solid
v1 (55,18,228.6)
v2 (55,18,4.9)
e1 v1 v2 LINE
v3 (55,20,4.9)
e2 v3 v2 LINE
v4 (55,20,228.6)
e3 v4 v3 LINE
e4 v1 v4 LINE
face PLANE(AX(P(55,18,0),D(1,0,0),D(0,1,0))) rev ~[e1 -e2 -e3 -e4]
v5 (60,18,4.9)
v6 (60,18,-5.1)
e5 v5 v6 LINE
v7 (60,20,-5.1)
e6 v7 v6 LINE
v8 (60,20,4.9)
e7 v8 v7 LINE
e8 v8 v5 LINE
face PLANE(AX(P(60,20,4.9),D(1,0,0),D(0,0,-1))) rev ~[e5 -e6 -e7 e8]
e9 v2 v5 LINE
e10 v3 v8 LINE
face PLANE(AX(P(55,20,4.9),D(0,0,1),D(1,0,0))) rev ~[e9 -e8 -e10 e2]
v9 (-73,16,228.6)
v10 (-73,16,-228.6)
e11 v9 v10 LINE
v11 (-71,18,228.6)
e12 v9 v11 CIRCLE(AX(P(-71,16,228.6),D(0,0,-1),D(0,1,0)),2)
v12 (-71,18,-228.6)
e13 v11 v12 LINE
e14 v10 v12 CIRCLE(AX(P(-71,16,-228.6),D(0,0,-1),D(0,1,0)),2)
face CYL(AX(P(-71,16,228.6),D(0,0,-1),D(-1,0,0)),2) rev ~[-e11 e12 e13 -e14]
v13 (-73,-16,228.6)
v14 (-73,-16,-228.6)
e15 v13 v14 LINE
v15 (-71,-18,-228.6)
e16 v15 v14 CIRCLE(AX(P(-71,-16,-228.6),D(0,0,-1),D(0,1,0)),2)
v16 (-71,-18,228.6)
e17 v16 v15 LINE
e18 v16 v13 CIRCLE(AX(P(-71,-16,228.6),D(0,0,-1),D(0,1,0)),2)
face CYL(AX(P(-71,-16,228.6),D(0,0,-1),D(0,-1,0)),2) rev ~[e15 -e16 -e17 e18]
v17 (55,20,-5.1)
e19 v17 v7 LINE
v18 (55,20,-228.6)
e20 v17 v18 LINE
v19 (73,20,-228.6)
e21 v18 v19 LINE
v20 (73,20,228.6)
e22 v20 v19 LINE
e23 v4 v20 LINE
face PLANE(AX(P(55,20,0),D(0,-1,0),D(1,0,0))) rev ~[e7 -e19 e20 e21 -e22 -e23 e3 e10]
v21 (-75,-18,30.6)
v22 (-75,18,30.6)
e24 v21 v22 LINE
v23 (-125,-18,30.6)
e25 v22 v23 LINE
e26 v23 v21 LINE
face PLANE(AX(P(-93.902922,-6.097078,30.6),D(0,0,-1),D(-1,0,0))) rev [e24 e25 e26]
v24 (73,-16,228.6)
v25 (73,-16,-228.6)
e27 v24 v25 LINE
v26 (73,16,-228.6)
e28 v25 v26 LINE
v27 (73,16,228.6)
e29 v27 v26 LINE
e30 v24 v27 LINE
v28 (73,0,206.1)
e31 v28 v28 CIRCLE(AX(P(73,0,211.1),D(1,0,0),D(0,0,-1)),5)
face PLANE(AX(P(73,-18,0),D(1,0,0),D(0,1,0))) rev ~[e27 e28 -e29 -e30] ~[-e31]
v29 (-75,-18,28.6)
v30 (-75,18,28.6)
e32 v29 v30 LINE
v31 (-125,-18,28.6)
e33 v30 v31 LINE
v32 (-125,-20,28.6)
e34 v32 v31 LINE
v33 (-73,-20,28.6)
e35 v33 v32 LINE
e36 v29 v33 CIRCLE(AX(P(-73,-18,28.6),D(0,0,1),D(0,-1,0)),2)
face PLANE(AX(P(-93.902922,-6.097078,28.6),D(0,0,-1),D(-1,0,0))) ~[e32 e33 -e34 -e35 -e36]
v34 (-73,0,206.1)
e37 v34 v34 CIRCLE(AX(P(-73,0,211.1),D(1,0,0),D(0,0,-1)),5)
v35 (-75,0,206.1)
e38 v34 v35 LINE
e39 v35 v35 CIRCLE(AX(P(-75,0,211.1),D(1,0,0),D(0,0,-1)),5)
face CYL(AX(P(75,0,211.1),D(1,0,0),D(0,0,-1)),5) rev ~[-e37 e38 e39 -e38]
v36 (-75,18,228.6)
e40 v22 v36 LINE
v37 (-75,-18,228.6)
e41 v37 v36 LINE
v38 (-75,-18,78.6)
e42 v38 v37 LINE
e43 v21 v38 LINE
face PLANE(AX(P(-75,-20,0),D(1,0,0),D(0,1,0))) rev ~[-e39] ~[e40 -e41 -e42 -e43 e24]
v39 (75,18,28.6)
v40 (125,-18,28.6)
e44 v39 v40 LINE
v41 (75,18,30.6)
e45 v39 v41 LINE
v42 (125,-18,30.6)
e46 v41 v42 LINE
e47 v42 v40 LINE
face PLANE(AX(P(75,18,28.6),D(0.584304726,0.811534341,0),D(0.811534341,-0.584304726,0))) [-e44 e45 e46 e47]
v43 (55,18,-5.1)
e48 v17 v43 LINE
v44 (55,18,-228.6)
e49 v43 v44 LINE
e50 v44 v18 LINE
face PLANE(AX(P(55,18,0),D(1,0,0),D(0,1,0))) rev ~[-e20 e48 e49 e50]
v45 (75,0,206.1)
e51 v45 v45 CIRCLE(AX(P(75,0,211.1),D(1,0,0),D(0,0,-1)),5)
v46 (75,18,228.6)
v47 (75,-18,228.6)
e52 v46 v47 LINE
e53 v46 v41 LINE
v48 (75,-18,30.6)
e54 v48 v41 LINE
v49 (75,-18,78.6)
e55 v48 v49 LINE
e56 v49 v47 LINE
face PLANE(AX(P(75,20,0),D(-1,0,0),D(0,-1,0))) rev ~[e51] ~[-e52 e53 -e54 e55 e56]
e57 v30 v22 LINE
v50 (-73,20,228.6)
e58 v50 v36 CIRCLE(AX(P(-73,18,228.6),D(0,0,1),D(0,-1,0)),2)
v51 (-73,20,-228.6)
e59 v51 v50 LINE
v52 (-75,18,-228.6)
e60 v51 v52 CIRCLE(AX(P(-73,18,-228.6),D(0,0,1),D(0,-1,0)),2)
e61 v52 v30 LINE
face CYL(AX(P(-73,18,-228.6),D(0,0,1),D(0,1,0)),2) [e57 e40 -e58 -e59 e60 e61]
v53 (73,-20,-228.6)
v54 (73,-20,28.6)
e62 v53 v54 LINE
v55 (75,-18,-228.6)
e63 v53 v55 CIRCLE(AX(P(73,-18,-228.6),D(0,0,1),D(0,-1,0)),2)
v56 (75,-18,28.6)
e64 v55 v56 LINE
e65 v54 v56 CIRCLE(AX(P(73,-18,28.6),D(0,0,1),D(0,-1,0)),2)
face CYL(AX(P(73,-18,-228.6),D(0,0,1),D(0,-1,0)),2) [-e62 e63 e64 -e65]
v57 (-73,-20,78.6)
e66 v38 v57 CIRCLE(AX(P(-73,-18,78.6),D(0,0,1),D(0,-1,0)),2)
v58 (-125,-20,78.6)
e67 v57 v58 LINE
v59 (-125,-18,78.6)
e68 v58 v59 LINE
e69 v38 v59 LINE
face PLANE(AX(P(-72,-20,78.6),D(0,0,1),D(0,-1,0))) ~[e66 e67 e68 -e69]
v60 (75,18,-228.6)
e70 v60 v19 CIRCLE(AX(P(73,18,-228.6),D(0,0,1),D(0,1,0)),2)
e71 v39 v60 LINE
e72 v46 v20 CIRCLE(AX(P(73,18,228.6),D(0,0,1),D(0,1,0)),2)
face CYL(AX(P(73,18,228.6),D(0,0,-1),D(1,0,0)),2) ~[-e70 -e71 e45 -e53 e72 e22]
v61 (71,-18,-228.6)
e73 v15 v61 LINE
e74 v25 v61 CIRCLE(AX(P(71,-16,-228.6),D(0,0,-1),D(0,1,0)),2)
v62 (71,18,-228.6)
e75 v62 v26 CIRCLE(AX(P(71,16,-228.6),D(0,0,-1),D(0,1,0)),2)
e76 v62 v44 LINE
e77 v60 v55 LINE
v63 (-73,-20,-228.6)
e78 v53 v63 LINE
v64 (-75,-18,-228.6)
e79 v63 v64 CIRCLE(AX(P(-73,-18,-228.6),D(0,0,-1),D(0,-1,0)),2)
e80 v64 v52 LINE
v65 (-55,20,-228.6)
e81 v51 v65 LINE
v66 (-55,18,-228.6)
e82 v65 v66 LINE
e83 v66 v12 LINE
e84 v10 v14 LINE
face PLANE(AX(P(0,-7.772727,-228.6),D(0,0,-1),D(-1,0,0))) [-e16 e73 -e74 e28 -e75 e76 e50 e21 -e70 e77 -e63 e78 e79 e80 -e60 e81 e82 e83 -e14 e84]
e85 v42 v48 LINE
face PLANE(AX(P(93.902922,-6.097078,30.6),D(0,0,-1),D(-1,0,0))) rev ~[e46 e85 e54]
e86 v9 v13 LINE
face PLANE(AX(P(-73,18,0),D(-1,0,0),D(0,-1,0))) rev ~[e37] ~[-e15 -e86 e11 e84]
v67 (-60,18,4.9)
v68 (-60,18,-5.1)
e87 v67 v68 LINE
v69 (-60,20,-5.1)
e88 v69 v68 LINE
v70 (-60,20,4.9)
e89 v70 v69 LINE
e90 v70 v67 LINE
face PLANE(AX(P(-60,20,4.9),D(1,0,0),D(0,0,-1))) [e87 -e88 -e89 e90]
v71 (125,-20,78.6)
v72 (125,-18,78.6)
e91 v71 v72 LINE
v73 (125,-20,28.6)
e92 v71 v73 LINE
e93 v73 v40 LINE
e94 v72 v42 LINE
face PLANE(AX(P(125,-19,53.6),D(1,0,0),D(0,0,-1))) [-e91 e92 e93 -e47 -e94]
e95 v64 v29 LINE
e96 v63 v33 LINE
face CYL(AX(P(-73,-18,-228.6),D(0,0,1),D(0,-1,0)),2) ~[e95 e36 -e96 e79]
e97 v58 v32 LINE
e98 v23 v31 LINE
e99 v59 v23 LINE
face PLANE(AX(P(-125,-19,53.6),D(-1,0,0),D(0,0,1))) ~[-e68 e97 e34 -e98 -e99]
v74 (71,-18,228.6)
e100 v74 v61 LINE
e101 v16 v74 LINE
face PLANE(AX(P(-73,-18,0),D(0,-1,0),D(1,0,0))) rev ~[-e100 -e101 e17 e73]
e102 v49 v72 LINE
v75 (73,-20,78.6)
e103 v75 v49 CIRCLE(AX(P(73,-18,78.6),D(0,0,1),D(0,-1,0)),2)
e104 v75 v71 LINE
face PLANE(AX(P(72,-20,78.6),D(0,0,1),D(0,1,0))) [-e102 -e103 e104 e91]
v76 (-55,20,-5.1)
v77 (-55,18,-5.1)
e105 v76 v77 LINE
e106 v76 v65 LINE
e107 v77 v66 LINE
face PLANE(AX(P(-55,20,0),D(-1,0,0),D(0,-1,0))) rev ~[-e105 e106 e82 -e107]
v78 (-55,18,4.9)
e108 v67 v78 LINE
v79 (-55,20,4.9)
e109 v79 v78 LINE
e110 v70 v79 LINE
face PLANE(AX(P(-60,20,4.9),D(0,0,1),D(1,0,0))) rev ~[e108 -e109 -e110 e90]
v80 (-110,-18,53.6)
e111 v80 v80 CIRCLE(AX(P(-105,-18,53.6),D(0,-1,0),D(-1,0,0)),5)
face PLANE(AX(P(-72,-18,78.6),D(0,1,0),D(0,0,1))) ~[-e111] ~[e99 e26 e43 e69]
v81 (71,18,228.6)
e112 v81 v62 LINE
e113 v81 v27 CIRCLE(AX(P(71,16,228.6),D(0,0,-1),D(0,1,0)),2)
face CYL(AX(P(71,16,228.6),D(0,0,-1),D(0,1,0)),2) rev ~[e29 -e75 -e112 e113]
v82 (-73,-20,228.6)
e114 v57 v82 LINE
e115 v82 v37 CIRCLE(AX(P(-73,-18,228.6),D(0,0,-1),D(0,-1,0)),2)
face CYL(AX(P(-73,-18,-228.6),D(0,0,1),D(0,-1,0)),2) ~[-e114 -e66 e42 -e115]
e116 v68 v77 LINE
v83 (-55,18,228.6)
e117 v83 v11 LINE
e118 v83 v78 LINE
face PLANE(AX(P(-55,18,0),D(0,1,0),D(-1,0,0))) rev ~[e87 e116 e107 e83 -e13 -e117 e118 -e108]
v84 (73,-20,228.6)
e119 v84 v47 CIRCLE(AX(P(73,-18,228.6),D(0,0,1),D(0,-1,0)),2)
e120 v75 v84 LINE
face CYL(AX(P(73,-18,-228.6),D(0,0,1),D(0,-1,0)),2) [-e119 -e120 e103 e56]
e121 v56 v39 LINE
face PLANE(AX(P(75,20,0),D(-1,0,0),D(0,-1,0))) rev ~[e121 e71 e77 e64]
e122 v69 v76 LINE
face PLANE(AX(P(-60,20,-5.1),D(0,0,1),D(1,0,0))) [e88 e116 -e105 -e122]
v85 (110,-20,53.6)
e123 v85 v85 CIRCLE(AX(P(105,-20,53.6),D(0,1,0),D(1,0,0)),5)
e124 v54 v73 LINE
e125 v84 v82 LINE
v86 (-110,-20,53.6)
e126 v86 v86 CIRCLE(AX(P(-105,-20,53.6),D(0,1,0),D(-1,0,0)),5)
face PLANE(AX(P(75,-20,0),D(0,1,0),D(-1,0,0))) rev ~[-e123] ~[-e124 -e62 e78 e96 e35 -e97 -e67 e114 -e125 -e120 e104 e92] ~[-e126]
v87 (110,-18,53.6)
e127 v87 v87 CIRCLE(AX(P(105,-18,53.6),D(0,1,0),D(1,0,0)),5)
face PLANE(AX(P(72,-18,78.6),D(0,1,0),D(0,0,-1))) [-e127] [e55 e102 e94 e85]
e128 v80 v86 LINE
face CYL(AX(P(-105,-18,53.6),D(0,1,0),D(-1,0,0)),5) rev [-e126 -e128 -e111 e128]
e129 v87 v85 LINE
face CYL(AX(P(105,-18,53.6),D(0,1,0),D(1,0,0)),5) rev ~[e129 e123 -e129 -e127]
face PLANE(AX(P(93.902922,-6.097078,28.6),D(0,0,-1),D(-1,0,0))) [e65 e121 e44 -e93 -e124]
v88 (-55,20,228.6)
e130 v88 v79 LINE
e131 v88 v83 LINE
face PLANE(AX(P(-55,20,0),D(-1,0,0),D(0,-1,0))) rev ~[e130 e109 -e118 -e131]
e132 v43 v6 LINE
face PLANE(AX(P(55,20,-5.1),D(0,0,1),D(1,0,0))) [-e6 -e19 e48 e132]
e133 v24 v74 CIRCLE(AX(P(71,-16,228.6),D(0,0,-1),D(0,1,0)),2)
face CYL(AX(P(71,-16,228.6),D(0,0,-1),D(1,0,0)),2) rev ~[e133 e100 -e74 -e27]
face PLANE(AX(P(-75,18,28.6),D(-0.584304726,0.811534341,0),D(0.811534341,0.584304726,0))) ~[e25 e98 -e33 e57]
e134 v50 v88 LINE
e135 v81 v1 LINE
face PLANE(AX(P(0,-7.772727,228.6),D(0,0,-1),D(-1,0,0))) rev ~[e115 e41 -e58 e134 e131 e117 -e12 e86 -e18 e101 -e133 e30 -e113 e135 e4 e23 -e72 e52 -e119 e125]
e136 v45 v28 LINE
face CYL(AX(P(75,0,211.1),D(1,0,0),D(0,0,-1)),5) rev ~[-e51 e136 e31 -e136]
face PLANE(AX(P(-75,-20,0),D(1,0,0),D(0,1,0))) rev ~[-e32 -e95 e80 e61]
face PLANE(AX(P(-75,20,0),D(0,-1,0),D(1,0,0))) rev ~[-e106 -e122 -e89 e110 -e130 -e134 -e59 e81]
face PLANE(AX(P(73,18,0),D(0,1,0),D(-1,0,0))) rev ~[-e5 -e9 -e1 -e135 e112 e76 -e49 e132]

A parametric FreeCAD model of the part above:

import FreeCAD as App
import Part
import Sketcher


def edges_at(feature, points):
    """Names of the edges that pass closest to the given points."""
    edges = feature.Shape.Edges
    near = lambda p: min(range(len(edges)), key=lambda i: edges[i].distToShape(Part.Vertex(*p))[0])
    return sorted({f"Edge{near(p) + 1}" for p in points})

doc = App.newDocument("Part")
params = doc.addObject("Spreadsheet::Sheet", "Params")
for row, (alias, value) in enumerate([
    ("sketch1_width", "20 mm"),
    ("sketch1_width2", "150 mm"),
    ("sketch1_width3", "18 mm"),
    ("sketch1_height", "40 mm"),
    ("sketch1_height2", "2 mm"),
    ("pad1_length", "457.2 mm"),
    ("fillet_radius", "2 mm"),
    ("sketch2_diameter", "10 mm"),
    ("sketch3_width", "2 mm"),
    ("sketch3_height", "50 mm"),
    ("pad2_length", "53 mm"),
    ("sketch4_diameter", "10 mm"),
    ("pocket2_length", "50 mm"),
    ("sketch5_width", "50 mm"),
    ("sketch5_height", "36 mm"),
    ("pad3_length", "2 mm"),
    ("sketch6_width", "5 mm"),
    ("sketch6_height", "10 mm"),
    ("pocket3_length", "10 mm"),
], start=1):
    params.set(f"A{row}", alias)
    params.set(f"B{row}", "=" + value)
    params.setAlias(f"B{row}", alias)

body = doc.addObject("PartDesign::Body", "Body")

# Sketch on XY plane
sketch1 = doc.addObject("Sketcher::SketchObject", "Sketch")
body.addObject(sketch1)
sketch1.AttachmentSupport = (doc.XY_Plane, [""])
sketch1.MapMode = "FlatFace"
sketch1.addGeometry([
    Part.LineSegment(App.Vector(-55, 20, 0), App.Vector(-75, 20, 0)),  # 0
    Part.LineSegment(App.Vector(-75, 20, 0), App.Vector(-75, -20, 0)),  # 1
    Part.LineSegment(App.Vector(-75, -20, 0), App.Vector(75, -20, 0)),  # 2
    Part.LineSegment(App.Vector(75, -20, 0), App.Vector(75, 20, 0)),  # 3
    Part.LineSegment(App.Vector(75, 20, 0), App.Vector(55, 20, 0)),  # 4
    Part.LineSegment(App.Vector(55, 20, 0), App.Vector(55, 18, 0)),  # 5
    Part.LineSegment(App.Vector(55, 18, 0), App.Vector(73, 18, 0)),  # 6
    Part.LineSegment(App.Vector(73, 18, 0), App.Vector(73, -18, 0)),  # 7
    Part.LineSegment(App.Vector(73, -18, 0), App.Vector(-73, -18, 0)),  # 8
    Part.LineSegment(App.Vector(-73, -18, 0), App.Vector(-73, 18, 0)),  # 9
    Part.LineSegment(App.Vector(-73, 18, 0), App.Vector(-55, 18, 0)),  # 10
    Part.LineSegment(App.Vector(-55, 18, 0), App.Vector(-55, 20, 0)),  # 11
], False)
sketch1.addConstraint([
    Sketcher.Constraint("Coincident", 0, 2, 1, 1),
    Sketcher.Constraint("Coincident", 1, 2, 2, 1),
    Sketcher.Constraint("Coincident", 2, 2, 3, 1),
    Sketcher.Constraint("Coincident", 3, 2, 4, 1),
    Sketcher.Constraint("Coincident", 4, 2, 5, 1),
    Sketcher.Constraint("Coincident", 5, 2, 6, 1),
    Sketcher.Constraint("Coincident", 6, 2, 7, 1),
    Sketcher.Constraint("Coincident", 7, 2, 8, 1),
    Sketcher.Constraint("Coincident", 8, 2, 9, 1),
    Sketcher.Constraint("Coincident", 9, 2, 10, 1),
    Sketcher.Constraint("Coincident", 10, 2, 11, 1),
    Sketcher.Constraint("Coincident", 11, 2, 0, 1),
    Sketcher.Constraint("Horizontal", 0),
    Sketcher.Constraint("Vertical", 1),
    Sketcher.Constraint("Horizontal", 2),
    Sketcher.Constraint("Vertical", 3),
    Sketcher.Constraint("Horizontal", 4),
    Sketcher.Constraint("Vertical", 5),
    Sketcher.Constraint("Horizontal", 6),
    Sketcher.Constraint("Vertical", 7),
    Sketcher.Constraint("Horizontal", 8),
    Sketcher.Constraint("Vertical", 9),
    Sketcher.Constraint("Horizontal", 10),
    Sketcher.Constraint("Vertical", 11),
    Sketcher.Constraint("Symmetric", 0, 2, 2, 2, -1, 1),
    Sketcher.Constraint("Symmetric", 6, 2, 8, 2, -1, 1),
    Sketcher.Constraint("Symmetric", 5, 2, 10, 2, -2),
    Sketcher.Constraint("Horizontal", 0, 2, 3, 2),
    Sketcher.Constraint("DistanceX", 0, 2, 0, 1, 20.0),
    Sketcher.Constraint("DistanceX", 2, 1, 2, 2, 150.0),
    Sketcher.Constraint("DistanceX", 6, 1, 6, 2, 18.0),
    Sketcher.Constraint("DistanceY", 1, 2, 1, 1, 40.0),
    Sketcher.Constraint("DistanceY", 5, 2, 5, 1, 2.0),
])
sketch1.setExpression("Constraints[28]", "Params.sketch1_width")
sketch1.setExpression("Constraints[29]", "Params.sketch1_width2")
sketch1.setExpression("Constraints[30]", "Params.sketch1_width3")
sketch1.setExpression("Constraints[31]", "Params.sketch1_height")
sketch1.setExpression("Constraints[32]", "Params.sketch1_height2")
pad1 = doc.addObject("PartDesign::Pad", "Pad")
body.addObject(pad1)
pad1.Profile = sketch1
pad1.setExpression("Length", "Params.pad1_length")
pad1.Midplane = True
doc.recompute()

fillet = doc.addObject("PartDesign::Fillet", "Fillet")
body.addObject(fillet)
fillet.Base = (pad1, edges_at(pad1, [
    (75, 20, 0),
    (75, -20, 0),
    (-75, -20, 0),
    (-75, 20, 0),
    (-73, 18, 0),
    (-73, -18, 0),
    (73, -18, 0),
    (73, 18, 0),
]))
fillet.setExpression("Radius", "Params.fillet_radius")

# Sketch on YZ plane
sketch2 = doc.addObject("Sketcher::SketchObject", "Sketch001")
body.addObject(sketch2)
sketch2.AttachmentSupport = (doc.YZ_Plane, [""])
sketch2.MapMode = "FlatFace"
sketch2.AttachmentOffset = App.Placement(App.Vector(0, 0, 75), App.Rotation())
sketch2.addGeometry(Part.Circle(App.Vector(0, 211.1, 0), App.Vector(0, 0, 1), 5), False)
sketch2.addConstraint([
    Sketcher.Constraint("PointOnObject", 0, 3, -2),
    Sketcher.Constraint("Diameter", 0, 10.0),
    Sketcher.Constraint("DistanceY", -1, 1, 0, 3, 211.1),
])
sketch2.setExpression("Constraints[1]", "Params.sketch2_diameter")
pocket1 = doc.addObject("PartDesign::Pocket", "Pocket")
body.addObject(pocket1)
pocket1.Profile = sketch2
pocket1.Type = "ThroughAll"

# Sketch on YZ plane
sketch3 = doc.addObject("Sketcher::SketchObject", "Sketch002")
body.addObject(sketch3)
sketch3.AttachmentSupport = (doc.YZ_Plane, [""])
sketch3.MapMode = "FlatFace"
sketch3.AttachmentOffset = App.Placement(App.Vector(0, 0, 72), App.Rotation())
sketch3.addGeometry([
    Part.LineSegment(App.Vector(-18, 78.6, 0), App.Vector(-20, 78.6, 0)),
    Part.LineSegment(App.Vector(-20, 78.6, 0), App.Vector(-20, 28.6, 0)),
    Part.LineSegment(App.Vector(-20, 28.6, 0), App.Vector(-18, 28.6, 0)),
    Part.LineSegment(App.Vector(-18, 28.6, 0), App.Vector(-18, 78.6, 0)),
], False)
sketch3.addConstraint([
    Sketcher.Constraint("Coincident", 0, 2, 1, 1),
    Sketcher.Constraint("Coincident", 1, 2, 2, 1),
    Sketcher.Constraint("Coincident", 2, 2, 3, 1),
    Sketcher.Constraint("Coincident", 3, 2, 0, 1),
    Sketcher.Constraint("Horizontal", 0),
    Sketcher.Constraint("Vertical", 1),
    Sketcher.Constraint("Horizontal", 2),
    Sketcher.Constraint("Vertical", 3),
    Sketcher.Constraint("DistanceX", 0, 2, 0, 1, 2.0),
    Sketcher.Constraint("DistanceY", 1, 2, 1, 1, 50.0),
    Sketcher.Constraint("DistanceX", 0, 2, -1, 1, 20.0),
    Sketcher.Constraint("DistanceY", -1, 1, 0, 2, 78.6),
])
sketch3.setExpression("Constraints[8]", "Params.sketch3_width")
sketch3.setExpression("Constraints[9]", "Params.sketch3_height")
pad2 = doc.addObject("PartDesign::Pad", "Pad001")
body.addObject(pad2)
pad2.Profile = sketch3
pad2.setExpression("Length", "Params.pad2_length")

# Sketch on XZ plane
sketch4 = doc.addObject("Sketcher::SketchObject", "Sketch003")
body.addObject(sketch4)
sketch4.AttachmentSupport = (doc.XZ_Plane, [""])
sketch4.MapMode = "FlatFace"
sketch4.AttachmentOffset = App.Placement(App.Vector(0, 0, 18), App.Rotation())
sketch4.addGeometry(Part.Circle(App.Vector(105, 53.6, 0), App.Vector(0, 0, 1), 5), False)
sketch4.addConstraint([
    Sketcher.Constraint("Diameter", 0, 10.0),
    Sketcher.Constraint("DistanceX", -1, 1, 0, 3, 105.0),
    Sketcher.Constraint("DistanceY", -1, 1, 0, 3, 53.6),
])
sketch4.setExpression("Constraints[0]", "Params.sketch4_diameter")
pocket2 = doc.addObject("PartDesign::Pocket", "Pocket001")
body.addObject(pocket2)
pocket2.Profile = sketch4
pocket2.setExpression("Length", "Params.pocket2_length")
pocket2.Reversed = True

# Sketch on XY plane
sketch5 = doc.addObject("Sketcher::SketchObject", "Sketch004")
body.addObject(sketch5)
sketch5.AttachmentSupport = (doc.XY_Plane, [""])
sketch5.MapMode = "FlatFace"
sketch5.AttachmentOffset = App.Placement(App.Vector(0, 0, 28.6), App.Rotation())
sketch5.addGeometry([
    Part.LineSegment(App.Vector(75, -18, 0), App.Vector(75, 18, 0)),
    Part.LineSegment(App.Vector(75, 18, 0), App.Vector(125, -18, 0)),
    Part.LineSegment(App.Vector(125, -18, 0), App.Vector(75, -18, 0)),
], False)
sketch5.addConstraint([
    Sketcher.Constraint("Coincident", 0, 2, 1, 1),
    Sketcher.Constraint("Coincident", 1, 2, 2, 1),
    Sketcher.Constraint("Coincident", 2, 2, 0, 1),
    Sketcher.Constraint("Vertical", 0),
    Sketcher.Constraint("Horizontal", 2),
    Sketcher.Constraint("DistanceX", 2, 2, 2, 1, 50.0),
    Sketcher.Constraint("DistanceY", 0, 1, 0, 2, 36.0),
    Sketcher.Constraint("DistanceX", -1, 1, 0, 2, 75.0),
    Sketcher.Constraint("DistanceY", -1, 1, 0, 2, 18.0),
])
sketch5.setExpression("Constraints[5]", "Params.sketch5_width")
sketch5.setExpression("Constraints[6]", "Params.sketch5_height")
pad3 = doc.addObject("PartDesign::Pad", "Pad002")
body.addObject(pad3)
pad3.Profile = sketch5
pad3.setExpression("Length", "Params.pad3_length")
doc.recompute()

mirrored = doc.addObject("PartDesign::Mirrored", "Mirrored")
body.addObject(mirrored)
mirrored.Originals = [pad2, pocket2, pad3]
mirrored.MirrorPlane = (doc.YZ_Plane, [""])
body.Tip = mirrored

# Sketch on XZ plane
sketch6 = doc.addObject("Sketcher::SketchObject", "Sketch005")
body.addObject(sketch6)
sketch6.AttachmentSupport = (doc.XZ_Plane, [""])
sketch6.MapMode = "FlatFace"
sketch6.AttachmentOffset = App.Placement(App.Vector(0, 0, -20), App.Rotation())
sketch6.addGeometry([
    Part.LineSegment(App.Vector(-60, -5.1, 0), App.Vector(-60, 4.9, 0)),  # 0
    Part.LineSegment(App.Vector(-60, 4.9, 0), App.Vector(-55, 4.9, 0)),  # 1
    Part.LineSegment(App.Vector(-55, 4.9, 0), App.Vector(-55, -5.1, 0)),  # 2
    Part.LineSegment(App.Vector(-55, -5.1, 0), App.Vector(-60, -5.1, 0)),  # 3
    Part.LineSegment(App.Vector(55, -5.1, 0), App.Vector(55, 4.9, 0)),  # 4
    Part.LineSegment(App.Vector(55, 4.9, 0), App.Vector(60, 4.9, 0)),  # 5
    Part.LineSegment(App.Vector(60, 4.9, 0), App.Vector(60, -5.1, 0)),  # 6
    Part.LineSegment(App.Vector(60, -5.1, 0), App.Vector(55, -5.1, 0)),  # 7
], False)
sketch6.addConstraint([
    Sketcher.Constraint("Coincident", 0, 2, 1, 1),
    Sketcher.Constraint("Coincident", 1, 2, 2, 1),
    Sketcher.Constraint("Coincident", 2, 2, 3, 1),
    Sketcher.Constraint("Coincident", 3, 2, 0, 1),
    Sketcher.Constraint("Coincident", 4, 2, 5, 1),
    Sketcher.Constraint("Coincident", 5, 2, 6, 1),
    Sketcher.Constraint("Coincident", 6, 2, 7, 1),
    Sketcher.Constraint("Coincident", 7, 2, 4, 1),
    Sketcher.Constraint("Vertical", 0),
    Sketcher.Constraint("Horizontal", 1),
    Sketcher.Constraint("Vertical", 2),
    Sketcher.Constraint("Horizontal", 3),
    Sketcher.Constraint("Vertical", 4),
    Sketcher.Constraint("Horizontal", 5),
    Sketcher.Constraint("Vertical", 6),
    Sketcher.Constraint("Horizontal", 7),
    Sketcher.Constraint("Symmetric", 1, 2, 4, 2, -2),
    Sketcher.Constraint("Symmetric", 3, 2, 6, 2, -2),
    Sketcher.Constraint("DistanceX", 1, 1, 1, 2, 5.0),
    Sketcher.Constraint("DistanceY", 0, 1, 0, 2, 10.0),
    Sketcher.Constraint("DistanceX", 0, 2, -1, 1, 60.0),
    Sketcher.Constraint("DistanceY", -1, 1, 0, 2, 4.9),
])
sketch6.setExpression("Constraints[18]", "Params.sketch6_width")
sketch6.setExpression("Constraints[19]", "Params.sketch6_height")
pocket3 = doc.addObject("PartDesign::Pocket", "Pocket002")
body.addObject(pocket3)
pocket3.Profile = sketch6
pocket3.setExpression("Length", "Params.pocket3_length")
pocket3.Reversed = True

doc.recompute()
